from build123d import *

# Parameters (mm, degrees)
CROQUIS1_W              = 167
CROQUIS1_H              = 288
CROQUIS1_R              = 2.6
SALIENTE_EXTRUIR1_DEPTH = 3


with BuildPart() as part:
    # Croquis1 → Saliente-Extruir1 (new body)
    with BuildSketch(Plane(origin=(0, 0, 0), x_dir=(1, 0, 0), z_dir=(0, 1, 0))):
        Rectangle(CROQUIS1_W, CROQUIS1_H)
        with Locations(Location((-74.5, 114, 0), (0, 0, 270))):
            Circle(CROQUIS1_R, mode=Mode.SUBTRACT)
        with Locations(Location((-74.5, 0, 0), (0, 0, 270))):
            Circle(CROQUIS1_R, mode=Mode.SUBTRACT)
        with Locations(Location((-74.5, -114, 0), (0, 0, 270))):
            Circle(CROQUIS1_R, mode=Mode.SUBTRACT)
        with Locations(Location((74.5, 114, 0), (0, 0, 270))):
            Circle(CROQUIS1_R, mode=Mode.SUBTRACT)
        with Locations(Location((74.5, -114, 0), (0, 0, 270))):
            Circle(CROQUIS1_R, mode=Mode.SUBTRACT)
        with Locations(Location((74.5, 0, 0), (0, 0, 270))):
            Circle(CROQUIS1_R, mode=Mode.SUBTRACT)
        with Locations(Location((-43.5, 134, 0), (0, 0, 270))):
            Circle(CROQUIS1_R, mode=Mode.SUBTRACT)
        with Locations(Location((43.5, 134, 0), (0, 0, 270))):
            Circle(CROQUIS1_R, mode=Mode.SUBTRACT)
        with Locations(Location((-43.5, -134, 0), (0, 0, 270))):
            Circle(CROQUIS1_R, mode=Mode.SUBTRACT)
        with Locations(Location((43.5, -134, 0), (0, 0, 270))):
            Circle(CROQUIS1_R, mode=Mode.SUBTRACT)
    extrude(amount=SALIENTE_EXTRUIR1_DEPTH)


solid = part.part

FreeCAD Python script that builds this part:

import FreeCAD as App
import Part
import Sketcher
from FreeCAD import Vector

doc = App.newDocument("Part")
body = doc.addObject("PartDesign::Body", "Body")

# Sketch on XZ plane
sketch1 = body.newObject("Sketcher::SketchObject", "Sketch")
sketch1.AttachmentSupport = (doc.getObject("XZ_Plane"), [""])
sketch1.MapMode = "FlatFace"
sketch1.addGeometry(Part.LineSegment(Vector(-83.5, -144, 0), Vector(-83.5, 144, 0)), False)
sketch1.addGeometry(Part.LineSegment(Vector(-83.5, 144, 0), Vector(83.5, 144, 0)), False)
sketch1.addGeometry(Part.LineSegment(Vector(83.5, 144, 0), Vector(83.5, -144, 0)), False)
sketch1.addGeometry(Part.LineSegment(Vector(83.5, -144, 0), Vector(-83.5, -144, 0)), False)
sketch1.addGeometry(Part.Circle(Vector(-74.5, 114, 0), Vector(0, 0, 1), 2.6), False)
sketch1.addGeometry(Part.Circle(Vector(-43.5, 134, 0), Vector(0, 0, 1), 2.6), False)
sketch1.addGeometry(Part.Circle(Vector(43.5, 134, 0), Vector(0, 0, 1), 2.6), False)
sketch1.addGeometry(Part.Circle(Vector(74.5, 114, 0), Vector(0, 0, 1), 2.6), False)
sketch1.addGeometry(Part.Circle(Vector(-74.5, 0, 0), Vector(0, 0, 1), 2.6), False)
sketch1.addGeometry(Part.Circle(Vector(-74.5, -114, 0), Vector(0, 0, 1), 2.6), False)
sketch1.addGeometry(Part.Circle(Vector(-43.5, -134, 0), Vector(0, 0, 1), 2.6), False)
sketch1.addGeometry(Part.Circle(Vector(74.5, 0, 0), Vector(0, 0, 1), 2.6), False)
sketch1.addGeometry(Part.Circle(Vector(43.5, -134, 0), Vector(0, 0, 1), 2.6), False)
sketch1.addGeometry(Part.Circle(Vector(74.5, -114, 0), Vector(0, 0, 1), 2.6), False)
sketch1.addConstraint(Sketcher.Constraint("Coincident", 0, 2, 1, 1))
sketch1.addConstraint(Sketcher.Constraint("Coincident", 1, 2, 2, 1))
sketch1.addConstraint(Sketcher.Constraint("Coincident", 2, 2, 3, 1))
sketch1.addConstraint(Sketcher.Constraint("Coincident", 3, 2, 0, 1))
sketch1.addConstraint(Sketcher.Constraint("Vertical", 0))
sketch1.addConstraint(Sketcher.Constraint("Horizontal", 1))
sketch1.addConstraint(Sketcher.Constraint("Vertical", 2))
sketch1.addConstraint(Sketcher.Constraint("Horizontal", 3))
sketch1.addConstraint(Sketcher.Constraint("Equal", 4, 5))
sketch1.addConstraint(Sketcher.Constraint("Equal", 5, 6))
sketch1.addConstraint(Sketcher.Constraint("Equal", 6, 7))
sketch1.addConstraint(Sketcher.Constraint("Equal", 7, 8))
sketch1.addConstraint(Sketcher.Constraint("Equal", 8, 9))
sketch1.addConstraint(Sketcher.Constraint("Equal", 9, 10))
sketch1.addConstraint(Sketcher.Constraint("Equal", 10, 11))
sketch1.addConstraint(Sketcher.Constraint("Equal", 11, 12))
sketch1.addConstraint(Sketcher.Constraint("Equal", 12, 13))
sketch1.addConstraint(Sketcher.Constraint("Symmetric", 7, 3, 9, 3, -1, 1))
sketch1.addConstraint(Sketcher.Constraint("Symmetric", 6, 3, 10, 3, -1, 1))
sketch1.addConstraint(Sketcher.Constraint("Symmetric", 8, 3, 11, 3, -1, 1))
sketch1.addConstraint(Sketcher.Constraint("Symmetric", 5, 3, 12, 3, -1, 1))
sketch1.addConstraint(Sketcher.Constraint("Symmetric", 4, 3, 13, 3, -1, 1))
sketch1.addConstraint(Sketcher.Constraint("Symmetric", 0, 2, 2, 2, -1, 1))
sketch1.addConstraint(Sketcher.Constraint("Symmetric", 5, 3, 6, 3, -2))
sketch1.addConstraint(Sketcher.Constraint("Symmetric", 4, 3, 7, 3, -2))
sketch1.addConstraint(Sketcher.Constraint("PointOnObject", 8, 3, -1))
sketch1.addConstraint(Sketcher.Constraint("Vertical", 4, 3, 8, 3))
sketch1.addConstraint(Sketcher.Constraint("Diameter", 4, 5.2))
sketch1.addConstraint(Sketcher.Constraint("DistanceX", 1, 1, 1, 2, 167.0))
sketch1.addConstraint(Sketcher.Constraint("DistanceY", 0, 1, 0, 2, 288.0))
sketch1.addConstraint(Sketcher.Constraint("DistanceY", -1, 1, 4, 3, 114.0))
sketch1.addConstraint(Sketcher.Constraint("DistanceY", -1, 1, 5, 3, 134.0))
sketch1.addConstraint(Sketcher.Constraint("DistanceX", 4, 3, 5, 3, 31.0))
sketch1.addConstraint(Sketcher.Constraint("DistanceX", 5, 3, 6, 3, 87.0))
pad1 = body.newObject("PartDesign::Pad", "Pad")
pad1.Profile = sketch1
pad1.Length = 3
pad1.Reversed = True

doc.recompute()
